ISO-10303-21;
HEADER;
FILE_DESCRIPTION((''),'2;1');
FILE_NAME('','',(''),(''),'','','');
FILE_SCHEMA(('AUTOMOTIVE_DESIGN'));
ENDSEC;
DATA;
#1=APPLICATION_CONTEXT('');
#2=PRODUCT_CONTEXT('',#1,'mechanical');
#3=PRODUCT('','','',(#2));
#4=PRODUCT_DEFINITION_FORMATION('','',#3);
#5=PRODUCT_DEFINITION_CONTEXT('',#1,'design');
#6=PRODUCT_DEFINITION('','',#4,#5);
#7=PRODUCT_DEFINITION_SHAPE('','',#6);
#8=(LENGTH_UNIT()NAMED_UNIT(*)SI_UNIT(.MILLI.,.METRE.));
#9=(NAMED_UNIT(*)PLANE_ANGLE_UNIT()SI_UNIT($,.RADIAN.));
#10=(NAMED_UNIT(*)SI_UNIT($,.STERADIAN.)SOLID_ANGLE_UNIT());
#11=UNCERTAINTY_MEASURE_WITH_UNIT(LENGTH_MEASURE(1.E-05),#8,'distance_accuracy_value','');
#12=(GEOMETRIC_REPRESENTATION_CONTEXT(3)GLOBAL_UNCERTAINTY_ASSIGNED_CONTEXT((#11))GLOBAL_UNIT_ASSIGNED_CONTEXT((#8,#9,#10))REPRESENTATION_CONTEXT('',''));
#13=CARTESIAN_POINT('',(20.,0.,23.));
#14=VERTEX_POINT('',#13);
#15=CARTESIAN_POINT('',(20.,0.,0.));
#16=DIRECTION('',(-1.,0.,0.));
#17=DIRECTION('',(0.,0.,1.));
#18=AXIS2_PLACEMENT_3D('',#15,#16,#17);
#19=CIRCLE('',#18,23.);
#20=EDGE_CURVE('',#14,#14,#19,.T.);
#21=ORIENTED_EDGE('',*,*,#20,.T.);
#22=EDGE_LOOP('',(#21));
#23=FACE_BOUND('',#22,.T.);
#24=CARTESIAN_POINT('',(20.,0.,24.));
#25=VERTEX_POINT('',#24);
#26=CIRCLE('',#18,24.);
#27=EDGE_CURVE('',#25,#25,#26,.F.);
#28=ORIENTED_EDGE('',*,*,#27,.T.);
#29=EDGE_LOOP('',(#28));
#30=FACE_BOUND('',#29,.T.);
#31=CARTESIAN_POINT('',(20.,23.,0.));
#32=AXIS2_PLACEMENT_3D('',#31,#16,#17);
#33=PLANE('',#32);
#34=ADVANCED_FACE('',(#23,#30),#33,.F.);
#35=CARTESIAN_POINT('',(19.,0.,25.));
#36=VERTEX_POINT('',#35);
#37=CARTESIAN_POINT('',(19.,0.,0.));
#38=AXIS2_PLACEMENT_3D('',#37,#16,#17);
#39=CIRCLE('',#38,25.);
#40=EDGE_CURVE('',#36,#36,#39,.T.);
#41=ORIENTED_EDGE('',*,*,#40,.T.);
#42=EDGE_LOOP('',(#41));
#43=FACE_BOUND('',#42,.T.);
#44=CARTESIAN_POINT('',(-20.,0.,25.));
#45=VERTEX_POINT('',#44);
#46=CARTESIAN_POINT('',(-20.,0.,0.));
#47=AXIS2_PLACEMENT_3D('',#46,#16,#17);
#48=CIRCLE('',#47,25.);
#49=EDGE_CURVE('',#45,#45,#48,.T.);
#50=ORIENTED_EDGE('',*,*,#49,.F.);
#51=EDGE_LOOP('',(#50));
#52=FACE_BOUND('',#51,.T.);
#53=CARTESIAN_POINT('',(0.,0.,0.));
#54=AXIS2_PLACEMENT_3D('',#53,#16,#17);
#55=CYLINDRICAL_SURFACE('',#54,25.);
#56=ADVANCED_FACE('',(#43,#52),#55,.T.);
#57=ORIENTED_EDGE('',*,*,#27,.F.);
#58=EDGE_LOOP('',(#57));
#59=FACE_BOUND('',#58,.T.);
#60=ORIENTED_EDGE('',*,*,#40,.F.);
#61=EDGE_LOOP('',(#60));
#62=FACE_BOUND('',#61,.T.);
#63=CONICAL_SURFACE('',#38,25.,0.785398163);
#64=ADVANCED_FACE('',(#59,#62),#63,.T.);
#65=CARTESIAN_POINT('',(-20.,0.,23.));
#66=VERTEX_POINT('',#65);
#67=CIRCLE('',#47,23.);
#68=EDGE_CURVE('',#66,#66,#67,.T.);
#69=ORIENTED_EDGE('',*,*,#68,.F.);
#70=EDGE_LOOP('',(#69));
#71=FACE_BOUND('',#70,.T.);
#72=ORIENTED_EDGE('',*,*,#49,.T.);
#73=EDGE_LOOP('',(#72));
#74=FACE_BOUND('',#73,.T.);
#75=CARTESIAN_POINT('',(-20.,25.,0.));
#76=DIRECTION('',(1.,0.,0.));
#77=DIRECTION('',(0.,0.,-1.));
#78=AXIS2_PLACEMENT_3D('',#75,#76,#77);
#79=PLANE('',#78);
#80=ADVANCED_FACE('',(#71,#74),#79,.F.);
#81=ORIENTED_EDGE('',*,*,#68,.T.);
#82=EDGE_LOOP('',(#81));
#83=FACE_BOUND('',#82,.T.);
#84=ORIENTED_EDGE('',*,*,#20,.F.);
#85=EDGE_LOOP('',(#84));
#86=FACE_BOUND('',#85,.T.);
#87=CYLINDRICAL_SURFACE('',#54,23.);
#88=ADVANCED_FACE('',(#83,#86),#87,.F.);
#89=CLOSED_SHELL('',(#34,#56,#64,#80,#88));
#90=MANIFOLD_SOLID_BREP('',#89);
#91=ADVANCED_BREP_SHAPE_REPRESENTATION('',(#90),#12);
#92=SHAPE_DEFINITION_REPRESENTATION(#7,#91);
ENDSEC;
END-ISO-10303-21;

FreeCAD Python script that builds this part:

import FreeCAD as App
import Part
import Sketcher

V = App.Vector


def edges_at(feature, points):
    """Names of the edges that pass closest to the given points."""
    edges = feature.Shape.Edges
    near = lambda p: min(range(len(edges)), key=lambda i: edges[i].distToShape(Part.Vertex(*p))[0])
    return sorted({f"Edge{near(p) + 1}" for p in points})

doc = App.newDocument("Part")
body = doc.addObject("PartDesign::Body", "Body")

# Sketch on XY plane
sketch1 = doc.addObject("Sketcher::SketchObject", "Sketch")
body.addObject(sketch1)
sketch1.AttachmentSupport = (doc.XY_Plane, [""])
sketch1.MapMode = "FlatFace"
sketch1.addGeometry(Part.LineSegment(V(-20, 25, 0), V(-20, 23, 0)), False)
sketch1.addGeometry(Part.LineSegment(V(-20, 23, 0), V(20, 23, 0)), False)
sketch1.addGeometry(Part.LineSegment(V(20, 23, 0), V(20, 25, 0)), False)
sketch1.addGeometry(Part.LineSegment(V(20, 25, 0), V(-20, 25, 0)), False)
sketch1.addConstraint(Sketcher.Constraint("Coincident", 0, 2, 1, 1))
sketch1.addConstraint(Sketcher.Constraint("Coincident", 1, 2, 2, 1))
sketch1.addConstraint(Sketcher.Constraint("Coincident", 2, 2, 3, 1))
sketch1.addConstraint(Sketcher.Constraint("Coincident", 3, 2, 0, 1))
sketch1.addConstraint(Sketcher.Constraint("Vertical", 0))
sketch1.addConstraint(Sketcher.Constraint("Horizontal", 1))
sketch1.addConstraint(Sketcher.Constraint("Vertical", 2))
sketch1.addConstraint(Sketcher.Constraint("Horizontal", 3))
sketch1.addConstraint(Sketcher.Constraint("DistanceX", 1, 1, 1, 2, 40.0))
sketch1.addConstraint(Sketcher.Constraint("DistanceY", 0, 2, 0, 1, 2.0))
sketch1.addConstraint(Sketcher.Constraint("DistanceX", 0, 2, -1, 1, 20.0))
sketch1.addConstraint(Sketcher.Constraint("DistanceY", -1, 1, 0, 2, 23.0))
revolution = doc.addObject("PartDesign::Revolution", "Revolution")
body.addObject(revolution)
revolution.Profile = sketch1
revolution.ReferenceAxis = (sketch1, ["H_Axis"])
revolution.Angle = 360
doc.recompute()

chamfer = doc.addObject("PartDesign::Chamfer", "Chamfer")
body.addObject(chamfer)
chamfer.Base = (revolution, edges_at(revolution, [(20, 0, -25)]))
chamfer.Size = 1

doc.recompute()
